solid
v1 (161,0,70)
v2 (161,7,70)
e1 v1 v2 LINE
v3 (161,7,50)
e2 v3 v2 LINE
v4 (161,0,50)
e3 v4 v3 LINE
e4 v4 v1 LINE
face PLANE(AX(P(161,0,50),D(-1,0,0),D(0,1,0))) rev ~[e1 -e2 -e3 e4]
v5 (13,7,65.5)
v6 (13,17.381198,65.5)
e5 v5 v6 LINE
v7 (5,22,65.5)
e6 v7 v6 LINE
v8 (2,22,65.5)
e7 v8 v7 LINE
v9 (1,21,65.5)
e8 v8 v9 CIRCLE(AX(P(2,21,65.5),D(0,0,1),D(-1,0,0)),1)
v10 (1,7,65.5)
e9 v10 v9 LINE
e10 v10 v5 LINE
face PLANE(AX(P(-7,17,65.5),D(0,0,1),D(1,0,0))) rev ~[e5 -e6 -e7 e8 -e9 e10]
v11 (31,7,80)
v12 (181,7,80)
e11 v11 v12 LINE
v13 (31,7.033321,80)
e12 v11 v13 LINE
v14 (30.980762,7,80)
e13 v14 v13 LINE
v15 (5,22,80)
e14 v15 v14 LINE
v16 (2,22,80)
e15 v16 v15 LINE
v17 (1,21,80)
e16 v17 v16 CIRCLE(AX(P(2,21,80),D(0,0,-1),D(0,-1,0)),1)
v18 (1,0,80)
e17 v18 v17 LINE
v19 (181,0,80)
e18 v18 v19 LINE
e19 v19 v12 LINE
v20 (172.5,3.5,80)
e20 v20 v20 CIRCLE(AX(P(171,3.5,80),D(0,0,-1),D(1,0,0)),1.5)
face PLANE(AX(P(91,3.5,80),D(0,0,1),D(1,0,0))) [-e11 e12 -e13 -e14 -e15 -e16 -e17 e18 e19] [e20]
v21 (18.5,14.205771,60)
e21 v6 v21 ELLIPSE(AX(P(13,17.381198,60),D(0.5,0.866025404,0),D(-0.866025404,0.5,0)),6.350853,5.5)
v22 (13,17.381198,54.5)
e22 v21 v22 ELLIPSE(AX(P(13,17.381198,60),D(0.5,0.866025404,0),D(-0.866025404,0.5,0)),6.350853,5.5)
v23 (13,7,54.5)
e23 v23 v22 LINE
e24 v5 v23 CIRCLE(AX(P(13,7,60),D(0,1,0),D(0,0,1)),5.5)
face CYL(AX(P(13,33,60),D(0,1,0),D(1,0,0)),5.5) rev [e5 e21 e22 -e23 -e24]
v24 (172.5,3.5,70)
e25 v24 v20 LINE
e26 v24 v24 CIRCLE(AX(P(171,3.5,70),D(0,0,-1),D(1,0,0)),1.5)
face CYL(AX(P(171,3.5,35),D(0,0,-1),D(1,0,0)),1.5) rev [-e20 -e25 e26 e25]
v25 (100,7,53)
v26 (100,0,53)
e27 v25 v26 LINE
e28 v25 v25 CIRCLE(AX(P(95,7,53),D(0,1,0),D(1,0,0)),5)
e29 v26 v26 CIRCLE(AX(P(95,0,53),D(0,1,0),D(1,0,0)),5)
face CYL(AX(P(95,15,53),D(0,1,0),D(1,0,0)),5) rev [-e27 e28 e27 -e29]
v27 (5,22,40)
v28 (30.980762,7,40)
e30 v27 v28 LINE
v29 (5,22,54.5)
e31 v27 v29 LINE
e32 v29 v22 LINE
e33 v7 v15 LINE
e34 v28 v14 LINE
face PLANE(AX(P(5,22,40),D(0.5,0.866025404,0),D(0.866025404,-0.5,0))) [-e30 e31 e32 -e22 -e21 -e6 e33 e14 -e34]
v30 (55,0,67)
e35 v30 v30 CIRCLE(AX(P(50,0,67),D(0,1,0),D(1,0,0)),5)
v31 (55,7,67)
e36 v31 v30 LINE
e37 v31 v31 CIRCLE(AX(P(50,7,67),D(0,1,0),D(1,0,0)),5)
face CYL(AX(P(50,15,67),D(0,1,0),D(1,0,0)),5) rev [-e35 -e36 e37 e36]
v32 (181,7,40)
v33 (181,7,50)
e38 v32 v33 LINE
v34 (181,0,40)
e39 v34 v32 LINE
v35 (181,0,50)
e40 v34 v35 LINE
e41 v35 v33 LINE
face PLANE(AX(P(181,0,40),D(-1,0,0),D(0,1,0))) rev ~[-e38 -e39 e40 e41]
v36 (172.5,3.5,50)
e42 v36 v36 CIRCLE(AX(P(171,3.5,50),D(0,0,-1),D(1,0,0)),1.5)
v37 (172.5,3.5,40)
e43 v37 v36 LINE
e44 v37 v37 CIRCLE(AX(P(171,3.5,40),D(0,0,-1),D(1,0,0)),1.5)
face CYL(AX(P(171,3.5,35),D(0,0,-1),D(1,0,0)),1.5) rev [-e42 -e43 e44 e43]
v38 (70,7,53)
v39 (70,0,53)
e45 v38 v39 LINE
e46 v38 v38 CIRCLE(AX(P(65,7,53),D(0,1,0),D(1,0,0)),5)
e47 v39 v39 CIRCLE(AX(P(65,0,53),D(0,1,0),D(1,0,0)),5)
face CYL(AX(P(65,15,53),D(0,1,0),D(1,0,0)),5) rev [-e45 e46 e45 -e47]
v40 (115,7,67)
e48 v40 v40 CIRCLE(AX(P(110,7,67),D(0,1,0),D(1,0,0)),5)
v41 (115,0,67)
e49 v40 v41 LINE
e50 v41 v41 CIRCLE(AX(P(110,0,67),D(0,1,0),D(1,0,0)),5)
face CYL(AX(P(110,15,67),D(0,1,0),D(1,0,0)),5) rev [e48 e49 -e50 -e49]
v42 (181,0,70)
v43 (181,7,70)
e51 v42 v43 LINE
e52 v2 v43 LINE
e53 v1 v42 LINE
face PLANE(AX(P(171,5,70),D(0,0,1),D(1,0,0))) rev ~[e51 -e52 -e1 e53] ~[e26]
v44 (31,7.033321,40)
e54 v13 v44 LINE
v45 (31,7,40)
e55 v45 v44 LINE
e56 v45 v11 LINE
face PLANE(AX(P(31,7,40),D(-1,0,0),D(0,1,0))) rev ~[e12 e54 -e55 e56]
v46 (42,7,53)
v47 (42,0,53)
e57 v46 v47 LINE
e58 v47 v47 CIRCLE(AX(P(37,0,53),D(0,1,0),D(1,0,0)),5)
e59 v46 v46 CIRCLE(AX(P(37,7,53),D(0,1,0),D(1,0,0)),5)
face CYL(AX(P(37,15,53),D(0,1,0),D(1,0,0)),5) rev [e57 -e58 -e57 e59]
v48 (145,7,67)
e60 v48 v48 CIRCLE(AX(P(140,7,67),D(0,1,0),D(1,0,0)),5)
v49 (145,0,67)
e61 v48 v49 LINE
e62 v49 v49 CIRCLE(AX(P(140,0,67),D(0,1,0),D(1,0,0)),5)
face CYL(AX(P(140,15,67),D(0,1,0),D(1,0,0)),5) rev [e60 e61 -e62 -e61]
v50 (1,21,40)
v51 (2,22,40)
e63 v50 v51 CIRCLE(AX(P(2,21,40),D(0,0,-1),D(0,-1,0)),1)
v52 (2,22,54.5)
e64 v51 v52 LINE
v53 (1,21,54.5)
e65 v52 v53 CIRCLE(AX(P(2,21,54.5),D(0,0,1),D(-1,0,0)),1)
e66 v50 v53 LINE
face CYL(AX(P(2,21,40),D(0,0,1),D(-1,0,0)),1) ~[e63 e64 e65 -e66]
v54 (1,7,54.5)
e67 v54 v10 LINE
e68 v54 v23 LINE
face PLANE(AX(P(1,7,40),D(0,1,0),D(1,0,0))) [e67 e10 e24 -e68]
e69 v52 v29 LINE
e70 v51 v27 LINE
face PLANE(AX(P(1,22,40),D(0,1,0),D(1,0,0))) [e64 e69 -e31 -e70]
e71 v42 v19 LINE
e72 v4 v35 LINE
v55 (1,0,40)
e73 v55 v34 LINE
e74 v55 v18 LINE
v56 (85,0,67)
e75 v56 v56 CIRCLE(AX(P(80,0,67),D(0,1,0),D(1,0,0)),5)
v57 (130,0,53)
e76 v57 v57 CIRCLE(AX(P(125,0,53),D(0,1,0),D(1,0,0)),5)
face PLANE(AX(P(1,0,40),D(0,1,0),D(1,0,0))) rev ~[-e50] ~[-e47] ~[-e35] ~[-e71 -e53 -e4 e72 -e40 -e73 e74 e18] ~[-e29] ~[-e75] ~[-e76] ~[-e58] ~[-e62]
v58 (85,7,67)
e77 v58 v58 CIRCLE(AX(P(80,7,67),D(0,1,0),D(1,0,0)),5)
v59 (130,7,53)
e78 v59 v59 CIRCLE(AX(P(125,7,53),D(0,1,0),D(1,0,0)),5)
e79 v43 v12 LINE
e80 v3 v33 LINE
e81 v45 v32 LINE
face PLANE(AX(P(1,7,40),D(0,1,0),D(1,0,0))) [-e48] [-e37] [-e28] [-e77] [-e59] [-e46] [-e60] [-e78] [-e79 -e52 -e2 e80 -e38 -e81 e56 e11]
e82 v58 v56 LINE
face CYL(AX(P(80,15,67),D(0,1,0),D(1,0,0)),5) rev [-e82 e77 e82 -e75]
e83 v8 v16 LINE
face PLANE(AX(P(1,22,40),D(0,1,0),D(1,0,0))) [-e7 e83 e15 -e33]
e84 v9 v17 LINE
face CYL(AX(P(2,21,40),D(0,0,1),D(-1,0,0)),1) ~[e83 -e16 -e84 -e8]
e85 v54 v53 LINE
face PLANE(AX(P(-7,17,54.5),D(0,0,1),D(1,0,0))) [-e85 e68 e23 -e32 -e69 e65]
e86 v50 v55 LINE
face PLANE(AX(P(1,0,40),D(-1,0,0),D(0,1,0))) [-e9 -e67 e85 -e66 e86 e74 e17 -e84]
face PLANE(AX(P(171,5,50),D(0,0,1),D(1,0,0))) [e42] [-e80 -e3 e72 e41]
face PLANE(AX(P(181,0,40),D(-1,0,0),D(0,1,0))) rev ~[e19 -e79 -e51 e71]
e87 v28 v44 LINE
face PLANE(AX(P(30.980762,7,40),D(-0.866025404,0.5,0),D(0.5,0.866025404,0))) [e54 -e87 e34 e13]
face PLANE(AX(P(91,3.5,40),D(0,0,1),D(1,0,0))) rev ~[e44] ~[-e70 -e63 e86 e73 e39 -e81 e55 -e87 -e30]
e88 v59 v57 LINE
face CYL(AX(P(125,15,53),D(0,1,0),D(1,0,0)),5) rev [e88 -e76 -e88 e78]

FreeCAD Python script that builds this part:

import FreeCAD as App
import Part
import Sketcher


def edges_at(feature, points):
    """Names of the edges that pass closest to the given points."""
    edges = feature.Shape.Edges
    near = lambda p: min(range(len(edges)), key=lambda i: edges[i].distToShape(Part.Vertex(*p))[0])
    return sorted({f"Edge{near(p) + 1}" for p in points})

doc = App.newDocument("Part")
body = doc.addObject("PartDesign::Body", "Body")

# Sketch on XY plane
sketch1 = doc.addObject("Sketcher::SketchObject", "Sketch")
body.addObject(sketch1)
sketch1.AttachmentSupport = (doc.XY_Plane, [""])
sketch1.MapMode = "FlatFace"
sketch1.addGeometry(Part.Circle(App.Vector(0, 0, 0), App.Vector(0, 0, 1), 5), False)
sketch1.addConstraint([
    Sketcher.Constraint("Coincident", 0, 3, -1, 1),
    Sketcher.Constraint("Diameter", 0, 10.0),
])
pad1 = doc.addObject("PartDesign::Pad", "Pad")
body.addObject(pad1)
pad1.Profile = sketch1
pad1.Length = 20
body2 = doc.addObject("PartDesign::Body", "Body001")
doc.recompute()

body.Placement = App.Placement(App.Vector(0, 0, 0), App.Rotation(App.Vector(1, 0, 0), 90))
boolean = doc.addObject("PartDesign::Boolean", "Boolean")
body2.addObject(boolean)
boolean.Type = "Fuse"
boolean.addObjects([body])
body3 = doc.addObject("PartDesign::Body", "Body002")
doc.recompute()

body2.Placement = App.Placement(App.Vector(37, 15, 53), App.Rotation(App.Vector(0, 0, 1), 0))
boolean2 = doc.addObject("PartDesign::Boolean", "Boolean001")
body3.addObject(boolean2)
boolean2.Type = "Fuse"
boolean2.addObjects([body2])
body4 = doc.addObject("PartDesign::Body", "Body003")

# Sketch on XY plane
sketch2 = doc.addObject("Sketcher::SketchObject", "Sketch001")
body4.addObject(sketch2)
sketch2.AttachmentSupport = (doc.getObject("XY_Plane003"), [""])
sketch2.MapMode = "FlatFace"
sketch2.addGeometry(Part.Circle(App.Vector(0, 0, 0), App.Vector(0, 0, 1), 5), False)
sketch2.addConstraint([
    Sketcher.Constraint("Coincident", 0, 3, -1, 1),
    Sketcher.Constraint("Diameter", 0, 10.0),
])
pad2 = doc.addObject("PartDesign::Pad", "Pad001")
body4.addObject(pad2)
pad2.Profile = sketch2
pad2.Length = 20
body5 = doc.addObject("PartDesign::Body", "Body004")
doc.recompute()

body4.Placement = App.Placement(App.Vector(0, 0, 0), App.Rotation(App.Vector(1, 0, 0), 90))
boolean3 = doc.addObject("PartDesign::Boolean", "Boolean002")
body5.addObject(boolean3)
boolean3.Type = "Fuse"
boolean3.addObjects([body4])
body6 = doc.addObject("PartDesign::Body", "Body005")
doc.recompute()

body5.Placement = App.Placement(App.Vector(50, 15, 67), App.Rotation(App.Vector(0, 0, 1), 0))
boolean4 = doc.addObject("PartDesign::Boolean", "Boolean003")
body6.addObject(boolean4)
boolean4.Type = "Fuse"
boolean4.addObjects([body5])
body7 = doc.addObject("PartDesign::Body", "Body006")

# Sketch on XY plane
sketch3 = doc.addObject("Sketcher::SketchObject", "Sketch002")
body7.addObject(sketch3)
sketch3.AttachmentSupport = (doc.getObject("XY_Plane006"), [""])
sketch3.MapMode = "FlatFace"
sketch3.addGeometry(Part.Circle(App.Vector(0, 0, 0), App.Vector(0, 0, 1), 5), False)
sketch3.addConstraint([
    Sketcher.Constraint("Coincident", 0, 3, -1, 1),
    Sketcher.Constraint("Diameter", 0, 10.0),
])
pad3 = doc.addObject("PartDesign::Pad", "Pad002")
body7.addObject(pad3)
pad3.Profile = sketch3
pad3.Length = 20
body8 = doc.addObject("PartDesign::Body", "Body007")
doc.recompute()

body7.Placement = App.Placement(App.Vector(0, 0, 0), App.Rotation(App.Vector(1, 0, 0), 90))
boolean5 = doc.addObject("PartDesign::Boolean", "Boolean004")
body8.addObject(boolean5)
boolean5.Type = "Fuse"
boolean5.addObjects([body7])
body9 = doc.addObject("PartDesign::Body", "Body008")
doc.recompute()

body8.Placement = App.Placement(App.Vector(65, 15, 53), App.Rotation(App.Vector(0, 0, 1), 0))
boolean6 = doc.addObject("PartDesign::Boolean", "Boolean005")
body9.addObject(boolean6)
boolean6.Type = "Fuse"
boolean6.addObjects([body8])
body10 = doc.addObject("PartDesign::Body", "Body009")

# Sketch on XY plane
sketch4 = doc.addObject("Sketcher::SketchObject", "Sketch003")
body10.addObject(sketch4)
sketch4.AttachmentSupport = (doc.getObject("XY_Plane009"), [""])
sketch4.MapMode = "FlatFace"
sketch4.addGeometry(Part.Circle(App.Vector(0, 0, 0), App.Vector(0, 0, 1), 5), False)
sketch4.addConstraint([
    Sketcher.Constraint("Coincident", 0, 3, -1, 1),
    Sketcher.Constraint("Diameter", 0, 10.0),
])
pad4 = doc.addObject("PartDesign::Pad", "Pad003")
body10.addObject(pad4)
pad4.Profile = sketch4
pad4.Length = 20
body11 = doc.addObject("PartDesign::Body", "Body010")
doc.recompute()

body10.Placement = App.Placement(App.Vector(0, 0, 0), App.Rotation(App.Vector(1, 0, 0), 90))
boolean7 = doc.addObject("PartDesign::Boolean", "Boolean006")
body11.addObject(boolean7)
boolean7.Type = "Fuse"
boolean7.addObjects([body10])
body12 = doc.addObject("PartDesign::Body", "Body011")
doc.recompute()

body11.Placement = App.Placement(App.Vector(80, 15, 67), App.Rotation(App.Vector(0, 0, 1), 0))
boolean8 = doc.addObject("PartDesign::Boolean", "Boolean007")
body12.addObject(boolean8)
boolean8.Type = "Fuse"
boolean8.addObjects([body11])
body13 = doc.addObject("PartDesign::Body", "Body012")

# Sketch on XY plane
sketch5 = doc.addObject("Sketcher::SketchObject", "Sketch004")
body13.addObject(sketch5)
sketch5.AttachmentSupport = (doc.getObject("XY_Plane012"), [""])
sketch5.MapMode = "FlatFace"
sketch5.addGeometry(Part.Circle(App.Vector(0, 0, 0), App.Vector(0, 0, 1), 5), False)
sketch5.addConstraint([
    Sketcher.Constraint("Coincident", 0, 3, -1, 1),
    Sketcher.Constraint("Diameter", 0, 10.0),
])
pad5 = doc.addObject("PartDesign::Pad", "Pad004")
body13.addObject(pad5)
pad5.Profile = sketch5
pad5.Length = 20
body14 = doc.addObject("PartDesign::Body", "Body013")
doc.recompute()

body13.Placement = App.Placement(App.Vector(0, 0, 0), App.Rotation(App.Vector(1, 0, 0), 90))
boolean9 = doc.addObject("PartDesign::Boolean", "Boolean008")
body14.addObject(boolean9)
boolean9.Type = "Fuse"
boolean9.addObjects([body13])
body15 = doc.addObject("PartDesign::Body", "Body014")
doc.recompute()

body14.Placement = App.Placement(App.Vector(95, 15, 53), App.Rotation(App.Vector(0, 0, 1), 0))
boolean10 = doc.addObject("PartDesign::Boolean", "Boolean009")
body15.addObject(boolean10)
boolean10.Type = "Fuse"
boolean10.addObjects([body14])
body16 = doc.addObject("PartDesign::Body", "Body015")

# Sketch on XY plane
sketch6 = doc.addObject("Sketcher::SketchObject", "Sketch005")
body16.addObject(sketch6)
sketch6.AttachmentSupport = (doc.getObject("XY_Plane015"), [""])
sketch6.MapMode = "FlatFace"
sketch6.addGeometry(Part.Circle(App.Vector(0, 0, 0), App.Vector(0, 0, 1), 5), False)
sketch6.addConstraint([
    Sketcher.Constraint("Coincident", 0, 3, -1, 1),
    Sketcher.Constraint("Diameter", 0, 10.0),
])
pad6 = doc.addObject("PartDesign::Pad", "Pad005")
body16.addObject(pad6)
pad6.Profile = sketch6
pad6.Length = 20
body17 = doc.addObject("PartDesign::Body", "Body016")
doc.recompute()

body16.Placement = App.Placement(App.Vector(0, 0, 0), App.Rotation(App.Vector(1, 0, 0), 90))
boolean11 = doc.addObject("PartDesign::Boolean", "Boolean010")
body17.addObject(boolean11)
boolean11.Type = "Fuse"
boolean11.addObjects([body16])
body18 = doc.addObject("PartDesign::Body", "Body017")
doc.recompute()

body17.Placement = App.Placement(App.Vector(110, 15, 67), App.Rotation(App.Vector(0, 0, 1), 0))
boolean12 = doc.addObject("PartDesign::Boolean", "Boolean011")
body18.addObject(boolean12)
boolean12.Type = "Fuse"
boolean12.addObjects([body17])
body19 = doc.addObject("PartDesign::Body", "Body018")

# Sketch on XY plane
sketch7 = doc.addObject("Sketcher::SketchObject", "Sketch006")
body19.addObject(sketch7)
sketch7.AttachmentSupport = (doc.getObject("XY_Plane018"), [""])
sketch7.MapMode = "FlatFace"
sketch7.addGeometry(Part.Circle(App.Vector(0, 0, 0), App.Vector(0, 0, 1), 5), False)
sketch7.addConstraint([
    Sketcher.Constraint("Coincident", 0, 3, -1, 1),
    Sketcher.Constraint("Diameter", 0, 10.0),
])
pad7 = doc.addObject("PartDesign::Pad", "Pad006")
body19.addObject(pad7)
pad7.Profile = sketch7
pad7.Length = 20
body20 = doc.addObject("PartDesign::Body", "Body019")
doc.recompute()

body19.Placement = App.Placement(App.Vector(0, 0, 0), App.Rotation(App.Vector(1, 0, 0), 90))
boolean13 = doc.addObject("PartDesign::Boolean", "Boolean012")
body20.addObject(boolean13)
boolean13.Type = "Fuse"
boolean13.addObjects([body19])
body21 = doc.addObject("PartDesign::Body", "Body020")
doc.recompute()

body20.Placement = App.Placement(App.Vector(125, 15, 53), App.Rotation(App.Vector(0, 0, 1), 0))
boolean14 = doc.addObject("PartDesign::Boolean", "Boolean013")
body21.addObject(boolean14)
boolean14.Type = "Fuse"
boolean14.addObjects([body20])
body22 = doc.addObject("PartDesign::Body", "Body021")

# Sketch on XY plane
sketch8 = doc.addObject("Sketcher::SketchObject", "Sketch007")
body22.addObject(sketch8)
sketch8.AttachmentSupport = (doc.getObject("XY_Plane021"), [""])
sketch8.MapMode = "FlatFace"
sketch8.addGeometry(Part.Circle(App.Vector(0, 0, 0), App.Vector(0, 0, 1), 5), False)
sketch8.addConstraint([
    Sketcher.Constraint("Coincident", 0, 3, -1, 1),
    Sketcher.Constraint("Diameter", 0, 10.0),
])
pad8 = doc.addObject("PartDesign::Pad", "Pad007")
body22.addObject(pad8)
pad8.Profile = sketch8
pad8.Length = 20
body23 = doc.addObject("PartDesign::Body", "Body022")
doc.recompute()

body22.Placement = App.Placement(App.Vector(0, 0, 0), App.Rotation(App.Vector(1, 0, 0), 90))
boolean15 = doc.addObject("PartDesign::Boolean", "Boolean014")
body23.addObject(boolean15)
boolean15.Type = "Fuse"
boolean15.addObjects([body22])
body24 = doc.addObject("PartDesign::Body", "Body023")
doc.recompute()

body23.Placement = App.Placement(App.Vector(140, 15, 67), App.Rotation(App.Vector(0, 0, 1), 0))
boolean16 = doc.addObject("PartDesign::Boolean", "Boolean015")
body24.addObject(boolean16)
boolean16.Type = "Fuse"
boolean16.addObjects([body23])
body25 = doc.addObject("PartDesign::Body", "Body024")

# Sketch on XY plane
sketch9 = doc.addObject("Sketcher::SketchObject", "Sketch008")
body25.addObject(sketch9)
sketch9.AttachmentSupport = (doc.getObject("XY_Plane024"), [""])
sketch9.MapMode = "FlatFace"
sketch9.AttachmentOffset = App.Placement(App.Vector(0, 0, 35), App.Rotation())
sketch9.addGeometry(Part.Circle(App.Vector(170, 3.5, 0), App.Vector(0, 0, 1), 1.5), False)
sketch9.addConstraint([
    Sketcher.Constraint("Diameter", 0, 3.0),
    Sketcher.Constraint("DistanceX", -1, 1, 0, 3, 170.0),
    Sketcher.Constraint("DistanceY", -1, 1, 0, 3, 3.5),
])
pad9 = doc.addObject("PartDesign::Pad", "Pad008")
body25.addObject(pad9)
pad9.Profile = sketch9
pad9.Length = 50
body26 = doc.addObject("PartDesign::Body", "Body025")

# Sketch on XY plane
sketch10 = doc.addObject("Sketcher::SketchObject", "Sketch009")
body26.addObject(sketch10)
sketch10.AttachmentSupport = (doc.getObject("XY_Plane025"), [""])
sketch10.MapMode = "FlatFace"
sketch10.AttachmentOffset = App.Placement(App.Vector(0, 0, 50), App.Rotation())
sketch10.addGeometry([
    Part.LineSegment(App.Vector(160, 10, 0), App.Vector(160, 0, 0)),
    Part.LineSegment(App.Vector(160, 0, 0), App.Vector(180, 0, 0)),
    Part.LineSegment(App.Vector(180, 0, 0), App.Vector(180, 10, 0)),
    Part.LineSegment(App.Vector(180, 10, 0), App.Vector(160, 10, 0)),
], False)
sketch10.addConstraint([
    Sketcher.Constraint("Coincident", 0, 2, 1, 1),
    Sketcher.Constraint("Coincident", 1, 2, 2, 1),
    Sketcher.Constraint("Coincident", 2, 2, 3, 1),
    Sketcher.Constraint("Coincident", 3, 2, 0, 1),
    Sketcher.Constraint("Vertical", 0),
    Sketcher.Constraint("Horizontal", 1),
    Sketcher.Constraint("Vertical", 2),
    Sketcher.Constraint("Horizontal", 3),
    Sketcher.Constraint("PointOnObject", 0, 2, -1),
    Sketcher.Constraint("DistanceX", 1, 1, 1, 2, 20.0),
    Sketcher.Constraint("DistanceY", 0, 2, 0, 1, 10.0),
    Sketcher.Constraint("DistanceX", -1, 1, 0, 2, 160.0),
])
pad10 = doc.addObject("PartDesign::Pad", "Pad009")
body26.addObject(pad10)
pad10.Profile = sketch10
pad10.Length = 20
body27 = doc.addObject("PartDesign::Body", "Body026")

# Sketch on XY plane
sketch11 = doc.addObject("Sketcher::SketchObject", "Sketch010")
body27.addObject(sketch11)
sketch11.AttachmentSupport = (doc.getObject("XY_Plane026"), [""])
sketch11.MapMode = "FlatFace"
sketch11.AttachmentOffset = App.Placement(App.Vector(0, 0, 40), App.Rotation())
sketch11.addGeometry([
    Part.LineSegment(App.Vector(0, 7, 0), App.Vector(0, 0, 0)),
    Part.LineSegment(App.Vector(0, 0, 0), App.Vector(180, 0, 0)),
    Part.LineSegment(App.Vector(180, 0, 0), App.Vector(180, 7, 0)),
    Part.LineSegment(App.Vector(180, 7, 0), App.Vector(0, 7, 0)),
], False)
sketch11.addConstraint([
    Sketcher.Constraint("Coincident", 0, 2, 1, 1),
    Sketcher.Constraint("Coincident", 1, 2, 2, 1),
    Sketcher.Constraint("Coincident", 2, 2, 3, 1),
    Sketcher.Constraint("Coincident", 3, 2, 0, 1),
    Sketcher.Constraint("Vertical", 0),
    Sketcher.Constraint("Horizontal", 1),
    Sketcher.Constraint("Vertical", 2),
    Sketcher.Constraint("Horizontal", 3),
    Sketcher.Constraint("Coincident", 0, 2, -1, 1),
    Sketcher.Constraint("DistanceX", 1, 1, 1, 2, 180.0),
    Sketcher.Constraint("DistanceY", 0, 2, 0, 1, 7.0),
])
pad11 = doc.addObject("PartDesign::Pad", "Pad010")
body27.addObject(pad11)
pad11.Profile = sketch11
pad11.Length = 40
doc.recompute()

boolean17 = doc.addObject("PartDesign::Boolean", "Boolean016")
body27.addObject(boolean17)
boolean17.Type = "Cut"
boolean17.addObjects([body26])
doc.recompute()

boolean18 = doc.addObject("PartDesign::Boolean", "Boolean017")
body27.addObject(boolean18)
boolean18.Type = "Cut"
boolean18.addObjects([body25])
body28 = doc.addObject("PartDesign::Body", "Body027")
doc.recompute()

body27.Placement = App.Placement(App.Vector(1, 0, 0), App.Rotation(App.Vector(0, 0, 1), 0))
boolean19 = doc.addObject("PartDesign::Boolean", "Boolean018")
body28.addObject(boolean19)
boolean19.Type = "Fuse"
boolean19.addObjects([body27])
doc.recompute()

boolean20 = doc.addObject("PartDesign::Boolean", "Boolean019")
body28.addObject(boolean20)
boolean20.Type = "Cut"
boolean20.addObjects([body24])
doc.recompute()

boolean21 = doc.addObject("PartDesign::Boolean", "Boolean020")
body28.addObject(boolean21)
boolean21.Type = "Cut"
boolean21.addObjects([body21])
doc.recompute()

boolean22 = doc.addObject("PartDesign::Boolean", "Boolean021")
body28.addObject(boolean22)
boolean22.Type = "Cut"
boolean22.addObjects([body18])
doc.recompute()

boolean23 = doc.addObject("PartDesign::Boolean", "Boolean022")
body28.addObject(boolean23)
boolean23.Type = "Cut"
boolean23.addObjects([body15])
doc.recompute()

boolean24 = doc.addObject("PartDesign::Boolean", "Boolean023")
body28.addObject(boolean24)
boolean24.Type = "Cut"
boolean24.addObjects([body12])
doc.recompute()

boolean25 = doc.addObject("PartDesign::Boolean", "Boolean024")
body28.addObject(boolean25)
boolean25.Type = "Cut"
boolean25.addObjects([body9])
doc.recompute()

boolean26 = doc.addObject("PartDesign::Boolean", "Boolean025")
body28.addObject(boolean26)
boolean26.Type = "Cut"
boolean26.addObjects([body6])
doc.recompute()

boolean27 = doc.addObject("PartDesign::Boolean", "Boolean026")
body28.addObject(boolean27)
boolean27.Type = "Cut"
boolean27.addObjects([body3])
body29 = doc.addObject("PartDesign::Body", "Body028")

# Sketch on XY plane
sketch12 = doc.addObject("Sketcher::SketchObject", "Sketch011")
body29.addObject(sketch12)
sketch12.AttachmentSupport = (doc.getObject("XY_Plane028"), [""])
sketch12.MapMode = "FlatFace"
sketch12.AttachmentOffset = App.Placement(App.Vector(0, 0, 54.5), App.Rotation())
sketch12.addGeometry([
    Part.LineSegment(App.Vector(-28, 27, 0), App.Vector(-28, 7, 0)),
    Part.LineSegment(App.Vector(-28, 7, 0), App.Vector(12, 7, 0)),
    Part.LineSegment(App.Vector(12, 7, 0), App.Vector(12, 27, 0)),
    Part.LineSegment(App.Vector(12, 27, 0), App.Vector(-28, 27, 0)),
], False)
sketch12.addConstraint([
    Sketcher.Constraint("Coincident", 0, 2, 1, 1),
    Sketcher.Constraint("Coincident", 1, 2, 2, 1),
    Sketcher.Constraint("Coincident", 2, 2, 3, 1),
    Sketcher.Constraint("Coincident", 3, 2, 0, 1),
    Sketcher.Constraint("Vertical", 0),
    Sketcher.Constraint("Horizontal", 1),
    Sketcher.Constraint("Vertical", 2),
    Sketcher.Constraint("Horizontal", 3),
    Sketcher.Constraint("DistanceX", 1, 1, 1, 2, 40.0),
    Sketcher.Constraint("DistanceY", 0, 2, 0, 1, 20.0),
    Sketcher.Constraint("DistanceX", 0, 2, -1, 1, 28.0),
    Sketcher.Constraint("DistanceY", -1, 1, 0, 2, 7.0),
])
pad12 = doc.addObject("PartDesign::Pad", "Pad011")
body29.addObject(pad12)
pad12.Profile = sketch12
pad12.Length = 11
body30 = doc.addObject("PartDesign::Body", "Body029")

# Sketch on XY plane
sketch13 = doc.addObject("Sketcher::SketchObject", "Sketch012")
body30.addObject(sketch13)
sketch13.AttachmentSupport = (doc.getObject("XY_Plane029"), [""])
sketch13.MapMode = "FlatFace"
sketch13.addGeometry(Part.Circle(App.Vector(0, 0, 0), App.Vector(0, 0, 1), 6), False)
sketch13.addConstraint([
    Sketcher.Constraint("Coincident", 0, 3, -1, 1),
    Sketcher.Constraint("Diameter", 0, 11.0),
])
pad13 = doc.addObject("PartDesign::Pad", "Pad012")
body30.addObject(pad13)
pad13.Profile = sketch13
pad13.Length = 28
body31 = doc.addObject("PartDesign::Body", "Body030")
doc.recompute()

body30.Placement = App.Placement(App.Vector(0, 0, 0), App.Rotation(App.Vector(1, 0, 0), 90))
boolean28 = doc.addObject("PartDesign::Boolean", "Boolean027")
body31.addObject(boolean28)
boolean28.Type = "Fuse"
boolean28.addObjects([body30])
body32 = doc.addObject("PartDesign::Body", "Body031")
doc.recompute()

body31.Placement = App.Placement(App.Vector(12, 33, 60), App.Rotation(App.Vector(0, 0, 1), 0))
boolean29 = doc.addObject("PartDesign::Boolean", "Boolean028")
body32.addObject(boolean29)
boolean29.Type = "Fuse"
boolean29.addObjects([body31])
body33 = doc.addObject("PartDesign::Body", "Body032")

# Sketch on XY plane
sketch14 = doc.addObject("Sketcher::SketchObject", "Sketch013")
body33.addObject(sketch14)
sketch14.AttachmentSupport = (doc.getObject("XY_Plane032"), [""])
sketch14.MapMode = "FlatFace"
sketch14.addGeometry([
    Part.LineSegment(App.Vector(0, 15, 0), App.Vector(0, 0, 0)),
    Part.LineSegment(App.Vector(0, 0, 0), App.Vector(30, 0, 0)),
    Part.LineSegment(App.Vector(30, 0, 0), App.Vector(30, 15, 0)),
    Part.LineSegment(App.Vector(30, 15, 0), App.Vector(0, 15, 0)),
], False)
sketch14.addConstraint([
    Sketcher.Constraint("Coincident", 0, 2, 1, 1),
    Sketcher.Constraint("Coincident", 1, 2, 2, 1),
    Sketcher.Constraint("Coincident", 2, 2, 3, 1),
    Sketcher.Constraint("Coincident", 3, 2, 0, 1),
    Sketcher.Constraint("Vertical", 0),
    Sketcher.Constraint("Horizontal", 1),
    Sketcher.Constraint("Vertical", 2),
    Sketcher.Constraint("Horizontal", 3),
    Sketcher.Constraint("Coincident", 0, 2, -1, 1),
    Sketcher.Constraint("DistanceX", 1, 1, 1, 2, 30.0),
    Sketcher.Constraint("DistanceY", 0, 2, 0, 1, 15.0),
])
pad14 = doc.addObject("PartDesign::Pad", "Pad013")
body33.addObject(pad14)
pad14.Profile = sketch14
pad14.Length = 40
body34 = doc.addObject("PartDesign::Body", "Body033")
doc.recompute()

body33.Placement = App.Placement(App.Vector(4, 22, 40), App.Rotation(App.Vector(0, 0, -1), 30))
boolean30 = doc.addObject("PartDesign::Boolean", "Boolean029")
body34.addObject(boolean30)
boolean30.Type = "Fuse"
boolean30.addObjects([body33])
body35 = doc.addObject("PartDesign::Body", "Body034")
body35.AllowCompound = True

# Sketch on XY plane
sketch15 = doc.addObject("Sketcher::SketchObject", "Sketch014")
body35.addObject(sketch15)
sketch15.AttachmentSupport = (doc.getObject("XY_Plane034"), [""])
sketch15.MapMode = "FlatFace"
sketch15.AttachmentOffset = App.Placement(App.Vector(0, 0, 40), App.Rotation())
sketch15.addGeometry([
    Part.LineSegment(App.Vector(0, 22, 0), App.Vector(0, 7, 0)),
    Part.LineSegment(App.Vector(0, 7, 0), App.Vector(30, 7, 0)),
    Part.LineSegment(App.Vector(30, 7, 0), App.Vector(30, 22, 0)),
    Part.LineSegment(App.Vector(30, 22, 0), App.Vector(0, 22, 0)),
], False)
sketch15.addConstraint([
    Sketcher.Constraint("Coincident", 0, 2, 1, 1),
    Sketcher.Constraint("Coincident", 1, 2, 2, 1),
    Sketcher.Constraint("Coincident", 2, 2, 3, 1),
    Sketcher.Constraint("Coincident", 3, 2, 0, 1),
    Sketcher.Constraint("Vertical", 0),
    Sketcher.Constraint("Horizontal", 1),
    Sketcher.Constraint("Vertical", 2),
    Sketcher.Constraint("Horizontal", 3),
    Sketcher.Constraint("PointOnObject", 0, 2, -2),
    Sketcher.Constraint("DistanceX", 1, 1, 1, 2, 30.0),
    Sketcher.Constraint("DistanceY", 0, 2, 0, 1, 15.0),
    Sketcher.Constraint("DistanceY", -1, 1, 0, 2, 7.0),
])
pad15 = doc.addObject("PartDesign::Pad", "Pad014")
body35.addObject(pad15)
pad15.Profile = sketch15
pad15.Length = 40
doc.recompute()

boolean31 = doc.addObject("PartDesign::Boolean", "Boolean030")
body35.addObject(boolean31)
boolean31.Type = "Cut"
boolean31.addObjects([body34])
doc.recompute()

fillet = doc.addObject("PartDesign::Fillet", "Fillet")
body35.addObject(fillet)
fillet.Base = (boolean31, edges_at(boolean31, [(0, 22, 60)]))
fillet.Radius = 1
doc.recompute()

boolean32 = doc.addObject("PartDesign::Boolean", "Boolean031")
body35.addObject(boolean32)
boolean32.Type = "Cut"
boolean32.addObjects([body32])
doc.recompute()

boolean33 = doc.addObject("PartDesign::Boolean", "Boolean032")
body35.addObject(boolean33)
boolean33.Type = "Cut"
boolean33.addObjects([body29])
body36 = doc.addObject("PartDesign::Body", "Body035")
body36.AllowCompound = True
doc.recompute()

body35.Placement = App.Placement(App.Vector(1, 0, 0), App.Rotation(App.Vector(0, 0, 1), 0))
boolean34 = doc.addObject("PartDesign::Boolean", "Boolean033")
body36.addObject(boolean34)
boolean34.Type = "Fuse"
boolean34.addObjects([body35])
doc.recompute()

boolean35 = doc.addObject("PartDesign::Boolean", "Boolean034")
body36.addObject(boolean35)
boolean35.Type = "Fuse"
boolean35.addObjects([body28])

doc.recompute()
